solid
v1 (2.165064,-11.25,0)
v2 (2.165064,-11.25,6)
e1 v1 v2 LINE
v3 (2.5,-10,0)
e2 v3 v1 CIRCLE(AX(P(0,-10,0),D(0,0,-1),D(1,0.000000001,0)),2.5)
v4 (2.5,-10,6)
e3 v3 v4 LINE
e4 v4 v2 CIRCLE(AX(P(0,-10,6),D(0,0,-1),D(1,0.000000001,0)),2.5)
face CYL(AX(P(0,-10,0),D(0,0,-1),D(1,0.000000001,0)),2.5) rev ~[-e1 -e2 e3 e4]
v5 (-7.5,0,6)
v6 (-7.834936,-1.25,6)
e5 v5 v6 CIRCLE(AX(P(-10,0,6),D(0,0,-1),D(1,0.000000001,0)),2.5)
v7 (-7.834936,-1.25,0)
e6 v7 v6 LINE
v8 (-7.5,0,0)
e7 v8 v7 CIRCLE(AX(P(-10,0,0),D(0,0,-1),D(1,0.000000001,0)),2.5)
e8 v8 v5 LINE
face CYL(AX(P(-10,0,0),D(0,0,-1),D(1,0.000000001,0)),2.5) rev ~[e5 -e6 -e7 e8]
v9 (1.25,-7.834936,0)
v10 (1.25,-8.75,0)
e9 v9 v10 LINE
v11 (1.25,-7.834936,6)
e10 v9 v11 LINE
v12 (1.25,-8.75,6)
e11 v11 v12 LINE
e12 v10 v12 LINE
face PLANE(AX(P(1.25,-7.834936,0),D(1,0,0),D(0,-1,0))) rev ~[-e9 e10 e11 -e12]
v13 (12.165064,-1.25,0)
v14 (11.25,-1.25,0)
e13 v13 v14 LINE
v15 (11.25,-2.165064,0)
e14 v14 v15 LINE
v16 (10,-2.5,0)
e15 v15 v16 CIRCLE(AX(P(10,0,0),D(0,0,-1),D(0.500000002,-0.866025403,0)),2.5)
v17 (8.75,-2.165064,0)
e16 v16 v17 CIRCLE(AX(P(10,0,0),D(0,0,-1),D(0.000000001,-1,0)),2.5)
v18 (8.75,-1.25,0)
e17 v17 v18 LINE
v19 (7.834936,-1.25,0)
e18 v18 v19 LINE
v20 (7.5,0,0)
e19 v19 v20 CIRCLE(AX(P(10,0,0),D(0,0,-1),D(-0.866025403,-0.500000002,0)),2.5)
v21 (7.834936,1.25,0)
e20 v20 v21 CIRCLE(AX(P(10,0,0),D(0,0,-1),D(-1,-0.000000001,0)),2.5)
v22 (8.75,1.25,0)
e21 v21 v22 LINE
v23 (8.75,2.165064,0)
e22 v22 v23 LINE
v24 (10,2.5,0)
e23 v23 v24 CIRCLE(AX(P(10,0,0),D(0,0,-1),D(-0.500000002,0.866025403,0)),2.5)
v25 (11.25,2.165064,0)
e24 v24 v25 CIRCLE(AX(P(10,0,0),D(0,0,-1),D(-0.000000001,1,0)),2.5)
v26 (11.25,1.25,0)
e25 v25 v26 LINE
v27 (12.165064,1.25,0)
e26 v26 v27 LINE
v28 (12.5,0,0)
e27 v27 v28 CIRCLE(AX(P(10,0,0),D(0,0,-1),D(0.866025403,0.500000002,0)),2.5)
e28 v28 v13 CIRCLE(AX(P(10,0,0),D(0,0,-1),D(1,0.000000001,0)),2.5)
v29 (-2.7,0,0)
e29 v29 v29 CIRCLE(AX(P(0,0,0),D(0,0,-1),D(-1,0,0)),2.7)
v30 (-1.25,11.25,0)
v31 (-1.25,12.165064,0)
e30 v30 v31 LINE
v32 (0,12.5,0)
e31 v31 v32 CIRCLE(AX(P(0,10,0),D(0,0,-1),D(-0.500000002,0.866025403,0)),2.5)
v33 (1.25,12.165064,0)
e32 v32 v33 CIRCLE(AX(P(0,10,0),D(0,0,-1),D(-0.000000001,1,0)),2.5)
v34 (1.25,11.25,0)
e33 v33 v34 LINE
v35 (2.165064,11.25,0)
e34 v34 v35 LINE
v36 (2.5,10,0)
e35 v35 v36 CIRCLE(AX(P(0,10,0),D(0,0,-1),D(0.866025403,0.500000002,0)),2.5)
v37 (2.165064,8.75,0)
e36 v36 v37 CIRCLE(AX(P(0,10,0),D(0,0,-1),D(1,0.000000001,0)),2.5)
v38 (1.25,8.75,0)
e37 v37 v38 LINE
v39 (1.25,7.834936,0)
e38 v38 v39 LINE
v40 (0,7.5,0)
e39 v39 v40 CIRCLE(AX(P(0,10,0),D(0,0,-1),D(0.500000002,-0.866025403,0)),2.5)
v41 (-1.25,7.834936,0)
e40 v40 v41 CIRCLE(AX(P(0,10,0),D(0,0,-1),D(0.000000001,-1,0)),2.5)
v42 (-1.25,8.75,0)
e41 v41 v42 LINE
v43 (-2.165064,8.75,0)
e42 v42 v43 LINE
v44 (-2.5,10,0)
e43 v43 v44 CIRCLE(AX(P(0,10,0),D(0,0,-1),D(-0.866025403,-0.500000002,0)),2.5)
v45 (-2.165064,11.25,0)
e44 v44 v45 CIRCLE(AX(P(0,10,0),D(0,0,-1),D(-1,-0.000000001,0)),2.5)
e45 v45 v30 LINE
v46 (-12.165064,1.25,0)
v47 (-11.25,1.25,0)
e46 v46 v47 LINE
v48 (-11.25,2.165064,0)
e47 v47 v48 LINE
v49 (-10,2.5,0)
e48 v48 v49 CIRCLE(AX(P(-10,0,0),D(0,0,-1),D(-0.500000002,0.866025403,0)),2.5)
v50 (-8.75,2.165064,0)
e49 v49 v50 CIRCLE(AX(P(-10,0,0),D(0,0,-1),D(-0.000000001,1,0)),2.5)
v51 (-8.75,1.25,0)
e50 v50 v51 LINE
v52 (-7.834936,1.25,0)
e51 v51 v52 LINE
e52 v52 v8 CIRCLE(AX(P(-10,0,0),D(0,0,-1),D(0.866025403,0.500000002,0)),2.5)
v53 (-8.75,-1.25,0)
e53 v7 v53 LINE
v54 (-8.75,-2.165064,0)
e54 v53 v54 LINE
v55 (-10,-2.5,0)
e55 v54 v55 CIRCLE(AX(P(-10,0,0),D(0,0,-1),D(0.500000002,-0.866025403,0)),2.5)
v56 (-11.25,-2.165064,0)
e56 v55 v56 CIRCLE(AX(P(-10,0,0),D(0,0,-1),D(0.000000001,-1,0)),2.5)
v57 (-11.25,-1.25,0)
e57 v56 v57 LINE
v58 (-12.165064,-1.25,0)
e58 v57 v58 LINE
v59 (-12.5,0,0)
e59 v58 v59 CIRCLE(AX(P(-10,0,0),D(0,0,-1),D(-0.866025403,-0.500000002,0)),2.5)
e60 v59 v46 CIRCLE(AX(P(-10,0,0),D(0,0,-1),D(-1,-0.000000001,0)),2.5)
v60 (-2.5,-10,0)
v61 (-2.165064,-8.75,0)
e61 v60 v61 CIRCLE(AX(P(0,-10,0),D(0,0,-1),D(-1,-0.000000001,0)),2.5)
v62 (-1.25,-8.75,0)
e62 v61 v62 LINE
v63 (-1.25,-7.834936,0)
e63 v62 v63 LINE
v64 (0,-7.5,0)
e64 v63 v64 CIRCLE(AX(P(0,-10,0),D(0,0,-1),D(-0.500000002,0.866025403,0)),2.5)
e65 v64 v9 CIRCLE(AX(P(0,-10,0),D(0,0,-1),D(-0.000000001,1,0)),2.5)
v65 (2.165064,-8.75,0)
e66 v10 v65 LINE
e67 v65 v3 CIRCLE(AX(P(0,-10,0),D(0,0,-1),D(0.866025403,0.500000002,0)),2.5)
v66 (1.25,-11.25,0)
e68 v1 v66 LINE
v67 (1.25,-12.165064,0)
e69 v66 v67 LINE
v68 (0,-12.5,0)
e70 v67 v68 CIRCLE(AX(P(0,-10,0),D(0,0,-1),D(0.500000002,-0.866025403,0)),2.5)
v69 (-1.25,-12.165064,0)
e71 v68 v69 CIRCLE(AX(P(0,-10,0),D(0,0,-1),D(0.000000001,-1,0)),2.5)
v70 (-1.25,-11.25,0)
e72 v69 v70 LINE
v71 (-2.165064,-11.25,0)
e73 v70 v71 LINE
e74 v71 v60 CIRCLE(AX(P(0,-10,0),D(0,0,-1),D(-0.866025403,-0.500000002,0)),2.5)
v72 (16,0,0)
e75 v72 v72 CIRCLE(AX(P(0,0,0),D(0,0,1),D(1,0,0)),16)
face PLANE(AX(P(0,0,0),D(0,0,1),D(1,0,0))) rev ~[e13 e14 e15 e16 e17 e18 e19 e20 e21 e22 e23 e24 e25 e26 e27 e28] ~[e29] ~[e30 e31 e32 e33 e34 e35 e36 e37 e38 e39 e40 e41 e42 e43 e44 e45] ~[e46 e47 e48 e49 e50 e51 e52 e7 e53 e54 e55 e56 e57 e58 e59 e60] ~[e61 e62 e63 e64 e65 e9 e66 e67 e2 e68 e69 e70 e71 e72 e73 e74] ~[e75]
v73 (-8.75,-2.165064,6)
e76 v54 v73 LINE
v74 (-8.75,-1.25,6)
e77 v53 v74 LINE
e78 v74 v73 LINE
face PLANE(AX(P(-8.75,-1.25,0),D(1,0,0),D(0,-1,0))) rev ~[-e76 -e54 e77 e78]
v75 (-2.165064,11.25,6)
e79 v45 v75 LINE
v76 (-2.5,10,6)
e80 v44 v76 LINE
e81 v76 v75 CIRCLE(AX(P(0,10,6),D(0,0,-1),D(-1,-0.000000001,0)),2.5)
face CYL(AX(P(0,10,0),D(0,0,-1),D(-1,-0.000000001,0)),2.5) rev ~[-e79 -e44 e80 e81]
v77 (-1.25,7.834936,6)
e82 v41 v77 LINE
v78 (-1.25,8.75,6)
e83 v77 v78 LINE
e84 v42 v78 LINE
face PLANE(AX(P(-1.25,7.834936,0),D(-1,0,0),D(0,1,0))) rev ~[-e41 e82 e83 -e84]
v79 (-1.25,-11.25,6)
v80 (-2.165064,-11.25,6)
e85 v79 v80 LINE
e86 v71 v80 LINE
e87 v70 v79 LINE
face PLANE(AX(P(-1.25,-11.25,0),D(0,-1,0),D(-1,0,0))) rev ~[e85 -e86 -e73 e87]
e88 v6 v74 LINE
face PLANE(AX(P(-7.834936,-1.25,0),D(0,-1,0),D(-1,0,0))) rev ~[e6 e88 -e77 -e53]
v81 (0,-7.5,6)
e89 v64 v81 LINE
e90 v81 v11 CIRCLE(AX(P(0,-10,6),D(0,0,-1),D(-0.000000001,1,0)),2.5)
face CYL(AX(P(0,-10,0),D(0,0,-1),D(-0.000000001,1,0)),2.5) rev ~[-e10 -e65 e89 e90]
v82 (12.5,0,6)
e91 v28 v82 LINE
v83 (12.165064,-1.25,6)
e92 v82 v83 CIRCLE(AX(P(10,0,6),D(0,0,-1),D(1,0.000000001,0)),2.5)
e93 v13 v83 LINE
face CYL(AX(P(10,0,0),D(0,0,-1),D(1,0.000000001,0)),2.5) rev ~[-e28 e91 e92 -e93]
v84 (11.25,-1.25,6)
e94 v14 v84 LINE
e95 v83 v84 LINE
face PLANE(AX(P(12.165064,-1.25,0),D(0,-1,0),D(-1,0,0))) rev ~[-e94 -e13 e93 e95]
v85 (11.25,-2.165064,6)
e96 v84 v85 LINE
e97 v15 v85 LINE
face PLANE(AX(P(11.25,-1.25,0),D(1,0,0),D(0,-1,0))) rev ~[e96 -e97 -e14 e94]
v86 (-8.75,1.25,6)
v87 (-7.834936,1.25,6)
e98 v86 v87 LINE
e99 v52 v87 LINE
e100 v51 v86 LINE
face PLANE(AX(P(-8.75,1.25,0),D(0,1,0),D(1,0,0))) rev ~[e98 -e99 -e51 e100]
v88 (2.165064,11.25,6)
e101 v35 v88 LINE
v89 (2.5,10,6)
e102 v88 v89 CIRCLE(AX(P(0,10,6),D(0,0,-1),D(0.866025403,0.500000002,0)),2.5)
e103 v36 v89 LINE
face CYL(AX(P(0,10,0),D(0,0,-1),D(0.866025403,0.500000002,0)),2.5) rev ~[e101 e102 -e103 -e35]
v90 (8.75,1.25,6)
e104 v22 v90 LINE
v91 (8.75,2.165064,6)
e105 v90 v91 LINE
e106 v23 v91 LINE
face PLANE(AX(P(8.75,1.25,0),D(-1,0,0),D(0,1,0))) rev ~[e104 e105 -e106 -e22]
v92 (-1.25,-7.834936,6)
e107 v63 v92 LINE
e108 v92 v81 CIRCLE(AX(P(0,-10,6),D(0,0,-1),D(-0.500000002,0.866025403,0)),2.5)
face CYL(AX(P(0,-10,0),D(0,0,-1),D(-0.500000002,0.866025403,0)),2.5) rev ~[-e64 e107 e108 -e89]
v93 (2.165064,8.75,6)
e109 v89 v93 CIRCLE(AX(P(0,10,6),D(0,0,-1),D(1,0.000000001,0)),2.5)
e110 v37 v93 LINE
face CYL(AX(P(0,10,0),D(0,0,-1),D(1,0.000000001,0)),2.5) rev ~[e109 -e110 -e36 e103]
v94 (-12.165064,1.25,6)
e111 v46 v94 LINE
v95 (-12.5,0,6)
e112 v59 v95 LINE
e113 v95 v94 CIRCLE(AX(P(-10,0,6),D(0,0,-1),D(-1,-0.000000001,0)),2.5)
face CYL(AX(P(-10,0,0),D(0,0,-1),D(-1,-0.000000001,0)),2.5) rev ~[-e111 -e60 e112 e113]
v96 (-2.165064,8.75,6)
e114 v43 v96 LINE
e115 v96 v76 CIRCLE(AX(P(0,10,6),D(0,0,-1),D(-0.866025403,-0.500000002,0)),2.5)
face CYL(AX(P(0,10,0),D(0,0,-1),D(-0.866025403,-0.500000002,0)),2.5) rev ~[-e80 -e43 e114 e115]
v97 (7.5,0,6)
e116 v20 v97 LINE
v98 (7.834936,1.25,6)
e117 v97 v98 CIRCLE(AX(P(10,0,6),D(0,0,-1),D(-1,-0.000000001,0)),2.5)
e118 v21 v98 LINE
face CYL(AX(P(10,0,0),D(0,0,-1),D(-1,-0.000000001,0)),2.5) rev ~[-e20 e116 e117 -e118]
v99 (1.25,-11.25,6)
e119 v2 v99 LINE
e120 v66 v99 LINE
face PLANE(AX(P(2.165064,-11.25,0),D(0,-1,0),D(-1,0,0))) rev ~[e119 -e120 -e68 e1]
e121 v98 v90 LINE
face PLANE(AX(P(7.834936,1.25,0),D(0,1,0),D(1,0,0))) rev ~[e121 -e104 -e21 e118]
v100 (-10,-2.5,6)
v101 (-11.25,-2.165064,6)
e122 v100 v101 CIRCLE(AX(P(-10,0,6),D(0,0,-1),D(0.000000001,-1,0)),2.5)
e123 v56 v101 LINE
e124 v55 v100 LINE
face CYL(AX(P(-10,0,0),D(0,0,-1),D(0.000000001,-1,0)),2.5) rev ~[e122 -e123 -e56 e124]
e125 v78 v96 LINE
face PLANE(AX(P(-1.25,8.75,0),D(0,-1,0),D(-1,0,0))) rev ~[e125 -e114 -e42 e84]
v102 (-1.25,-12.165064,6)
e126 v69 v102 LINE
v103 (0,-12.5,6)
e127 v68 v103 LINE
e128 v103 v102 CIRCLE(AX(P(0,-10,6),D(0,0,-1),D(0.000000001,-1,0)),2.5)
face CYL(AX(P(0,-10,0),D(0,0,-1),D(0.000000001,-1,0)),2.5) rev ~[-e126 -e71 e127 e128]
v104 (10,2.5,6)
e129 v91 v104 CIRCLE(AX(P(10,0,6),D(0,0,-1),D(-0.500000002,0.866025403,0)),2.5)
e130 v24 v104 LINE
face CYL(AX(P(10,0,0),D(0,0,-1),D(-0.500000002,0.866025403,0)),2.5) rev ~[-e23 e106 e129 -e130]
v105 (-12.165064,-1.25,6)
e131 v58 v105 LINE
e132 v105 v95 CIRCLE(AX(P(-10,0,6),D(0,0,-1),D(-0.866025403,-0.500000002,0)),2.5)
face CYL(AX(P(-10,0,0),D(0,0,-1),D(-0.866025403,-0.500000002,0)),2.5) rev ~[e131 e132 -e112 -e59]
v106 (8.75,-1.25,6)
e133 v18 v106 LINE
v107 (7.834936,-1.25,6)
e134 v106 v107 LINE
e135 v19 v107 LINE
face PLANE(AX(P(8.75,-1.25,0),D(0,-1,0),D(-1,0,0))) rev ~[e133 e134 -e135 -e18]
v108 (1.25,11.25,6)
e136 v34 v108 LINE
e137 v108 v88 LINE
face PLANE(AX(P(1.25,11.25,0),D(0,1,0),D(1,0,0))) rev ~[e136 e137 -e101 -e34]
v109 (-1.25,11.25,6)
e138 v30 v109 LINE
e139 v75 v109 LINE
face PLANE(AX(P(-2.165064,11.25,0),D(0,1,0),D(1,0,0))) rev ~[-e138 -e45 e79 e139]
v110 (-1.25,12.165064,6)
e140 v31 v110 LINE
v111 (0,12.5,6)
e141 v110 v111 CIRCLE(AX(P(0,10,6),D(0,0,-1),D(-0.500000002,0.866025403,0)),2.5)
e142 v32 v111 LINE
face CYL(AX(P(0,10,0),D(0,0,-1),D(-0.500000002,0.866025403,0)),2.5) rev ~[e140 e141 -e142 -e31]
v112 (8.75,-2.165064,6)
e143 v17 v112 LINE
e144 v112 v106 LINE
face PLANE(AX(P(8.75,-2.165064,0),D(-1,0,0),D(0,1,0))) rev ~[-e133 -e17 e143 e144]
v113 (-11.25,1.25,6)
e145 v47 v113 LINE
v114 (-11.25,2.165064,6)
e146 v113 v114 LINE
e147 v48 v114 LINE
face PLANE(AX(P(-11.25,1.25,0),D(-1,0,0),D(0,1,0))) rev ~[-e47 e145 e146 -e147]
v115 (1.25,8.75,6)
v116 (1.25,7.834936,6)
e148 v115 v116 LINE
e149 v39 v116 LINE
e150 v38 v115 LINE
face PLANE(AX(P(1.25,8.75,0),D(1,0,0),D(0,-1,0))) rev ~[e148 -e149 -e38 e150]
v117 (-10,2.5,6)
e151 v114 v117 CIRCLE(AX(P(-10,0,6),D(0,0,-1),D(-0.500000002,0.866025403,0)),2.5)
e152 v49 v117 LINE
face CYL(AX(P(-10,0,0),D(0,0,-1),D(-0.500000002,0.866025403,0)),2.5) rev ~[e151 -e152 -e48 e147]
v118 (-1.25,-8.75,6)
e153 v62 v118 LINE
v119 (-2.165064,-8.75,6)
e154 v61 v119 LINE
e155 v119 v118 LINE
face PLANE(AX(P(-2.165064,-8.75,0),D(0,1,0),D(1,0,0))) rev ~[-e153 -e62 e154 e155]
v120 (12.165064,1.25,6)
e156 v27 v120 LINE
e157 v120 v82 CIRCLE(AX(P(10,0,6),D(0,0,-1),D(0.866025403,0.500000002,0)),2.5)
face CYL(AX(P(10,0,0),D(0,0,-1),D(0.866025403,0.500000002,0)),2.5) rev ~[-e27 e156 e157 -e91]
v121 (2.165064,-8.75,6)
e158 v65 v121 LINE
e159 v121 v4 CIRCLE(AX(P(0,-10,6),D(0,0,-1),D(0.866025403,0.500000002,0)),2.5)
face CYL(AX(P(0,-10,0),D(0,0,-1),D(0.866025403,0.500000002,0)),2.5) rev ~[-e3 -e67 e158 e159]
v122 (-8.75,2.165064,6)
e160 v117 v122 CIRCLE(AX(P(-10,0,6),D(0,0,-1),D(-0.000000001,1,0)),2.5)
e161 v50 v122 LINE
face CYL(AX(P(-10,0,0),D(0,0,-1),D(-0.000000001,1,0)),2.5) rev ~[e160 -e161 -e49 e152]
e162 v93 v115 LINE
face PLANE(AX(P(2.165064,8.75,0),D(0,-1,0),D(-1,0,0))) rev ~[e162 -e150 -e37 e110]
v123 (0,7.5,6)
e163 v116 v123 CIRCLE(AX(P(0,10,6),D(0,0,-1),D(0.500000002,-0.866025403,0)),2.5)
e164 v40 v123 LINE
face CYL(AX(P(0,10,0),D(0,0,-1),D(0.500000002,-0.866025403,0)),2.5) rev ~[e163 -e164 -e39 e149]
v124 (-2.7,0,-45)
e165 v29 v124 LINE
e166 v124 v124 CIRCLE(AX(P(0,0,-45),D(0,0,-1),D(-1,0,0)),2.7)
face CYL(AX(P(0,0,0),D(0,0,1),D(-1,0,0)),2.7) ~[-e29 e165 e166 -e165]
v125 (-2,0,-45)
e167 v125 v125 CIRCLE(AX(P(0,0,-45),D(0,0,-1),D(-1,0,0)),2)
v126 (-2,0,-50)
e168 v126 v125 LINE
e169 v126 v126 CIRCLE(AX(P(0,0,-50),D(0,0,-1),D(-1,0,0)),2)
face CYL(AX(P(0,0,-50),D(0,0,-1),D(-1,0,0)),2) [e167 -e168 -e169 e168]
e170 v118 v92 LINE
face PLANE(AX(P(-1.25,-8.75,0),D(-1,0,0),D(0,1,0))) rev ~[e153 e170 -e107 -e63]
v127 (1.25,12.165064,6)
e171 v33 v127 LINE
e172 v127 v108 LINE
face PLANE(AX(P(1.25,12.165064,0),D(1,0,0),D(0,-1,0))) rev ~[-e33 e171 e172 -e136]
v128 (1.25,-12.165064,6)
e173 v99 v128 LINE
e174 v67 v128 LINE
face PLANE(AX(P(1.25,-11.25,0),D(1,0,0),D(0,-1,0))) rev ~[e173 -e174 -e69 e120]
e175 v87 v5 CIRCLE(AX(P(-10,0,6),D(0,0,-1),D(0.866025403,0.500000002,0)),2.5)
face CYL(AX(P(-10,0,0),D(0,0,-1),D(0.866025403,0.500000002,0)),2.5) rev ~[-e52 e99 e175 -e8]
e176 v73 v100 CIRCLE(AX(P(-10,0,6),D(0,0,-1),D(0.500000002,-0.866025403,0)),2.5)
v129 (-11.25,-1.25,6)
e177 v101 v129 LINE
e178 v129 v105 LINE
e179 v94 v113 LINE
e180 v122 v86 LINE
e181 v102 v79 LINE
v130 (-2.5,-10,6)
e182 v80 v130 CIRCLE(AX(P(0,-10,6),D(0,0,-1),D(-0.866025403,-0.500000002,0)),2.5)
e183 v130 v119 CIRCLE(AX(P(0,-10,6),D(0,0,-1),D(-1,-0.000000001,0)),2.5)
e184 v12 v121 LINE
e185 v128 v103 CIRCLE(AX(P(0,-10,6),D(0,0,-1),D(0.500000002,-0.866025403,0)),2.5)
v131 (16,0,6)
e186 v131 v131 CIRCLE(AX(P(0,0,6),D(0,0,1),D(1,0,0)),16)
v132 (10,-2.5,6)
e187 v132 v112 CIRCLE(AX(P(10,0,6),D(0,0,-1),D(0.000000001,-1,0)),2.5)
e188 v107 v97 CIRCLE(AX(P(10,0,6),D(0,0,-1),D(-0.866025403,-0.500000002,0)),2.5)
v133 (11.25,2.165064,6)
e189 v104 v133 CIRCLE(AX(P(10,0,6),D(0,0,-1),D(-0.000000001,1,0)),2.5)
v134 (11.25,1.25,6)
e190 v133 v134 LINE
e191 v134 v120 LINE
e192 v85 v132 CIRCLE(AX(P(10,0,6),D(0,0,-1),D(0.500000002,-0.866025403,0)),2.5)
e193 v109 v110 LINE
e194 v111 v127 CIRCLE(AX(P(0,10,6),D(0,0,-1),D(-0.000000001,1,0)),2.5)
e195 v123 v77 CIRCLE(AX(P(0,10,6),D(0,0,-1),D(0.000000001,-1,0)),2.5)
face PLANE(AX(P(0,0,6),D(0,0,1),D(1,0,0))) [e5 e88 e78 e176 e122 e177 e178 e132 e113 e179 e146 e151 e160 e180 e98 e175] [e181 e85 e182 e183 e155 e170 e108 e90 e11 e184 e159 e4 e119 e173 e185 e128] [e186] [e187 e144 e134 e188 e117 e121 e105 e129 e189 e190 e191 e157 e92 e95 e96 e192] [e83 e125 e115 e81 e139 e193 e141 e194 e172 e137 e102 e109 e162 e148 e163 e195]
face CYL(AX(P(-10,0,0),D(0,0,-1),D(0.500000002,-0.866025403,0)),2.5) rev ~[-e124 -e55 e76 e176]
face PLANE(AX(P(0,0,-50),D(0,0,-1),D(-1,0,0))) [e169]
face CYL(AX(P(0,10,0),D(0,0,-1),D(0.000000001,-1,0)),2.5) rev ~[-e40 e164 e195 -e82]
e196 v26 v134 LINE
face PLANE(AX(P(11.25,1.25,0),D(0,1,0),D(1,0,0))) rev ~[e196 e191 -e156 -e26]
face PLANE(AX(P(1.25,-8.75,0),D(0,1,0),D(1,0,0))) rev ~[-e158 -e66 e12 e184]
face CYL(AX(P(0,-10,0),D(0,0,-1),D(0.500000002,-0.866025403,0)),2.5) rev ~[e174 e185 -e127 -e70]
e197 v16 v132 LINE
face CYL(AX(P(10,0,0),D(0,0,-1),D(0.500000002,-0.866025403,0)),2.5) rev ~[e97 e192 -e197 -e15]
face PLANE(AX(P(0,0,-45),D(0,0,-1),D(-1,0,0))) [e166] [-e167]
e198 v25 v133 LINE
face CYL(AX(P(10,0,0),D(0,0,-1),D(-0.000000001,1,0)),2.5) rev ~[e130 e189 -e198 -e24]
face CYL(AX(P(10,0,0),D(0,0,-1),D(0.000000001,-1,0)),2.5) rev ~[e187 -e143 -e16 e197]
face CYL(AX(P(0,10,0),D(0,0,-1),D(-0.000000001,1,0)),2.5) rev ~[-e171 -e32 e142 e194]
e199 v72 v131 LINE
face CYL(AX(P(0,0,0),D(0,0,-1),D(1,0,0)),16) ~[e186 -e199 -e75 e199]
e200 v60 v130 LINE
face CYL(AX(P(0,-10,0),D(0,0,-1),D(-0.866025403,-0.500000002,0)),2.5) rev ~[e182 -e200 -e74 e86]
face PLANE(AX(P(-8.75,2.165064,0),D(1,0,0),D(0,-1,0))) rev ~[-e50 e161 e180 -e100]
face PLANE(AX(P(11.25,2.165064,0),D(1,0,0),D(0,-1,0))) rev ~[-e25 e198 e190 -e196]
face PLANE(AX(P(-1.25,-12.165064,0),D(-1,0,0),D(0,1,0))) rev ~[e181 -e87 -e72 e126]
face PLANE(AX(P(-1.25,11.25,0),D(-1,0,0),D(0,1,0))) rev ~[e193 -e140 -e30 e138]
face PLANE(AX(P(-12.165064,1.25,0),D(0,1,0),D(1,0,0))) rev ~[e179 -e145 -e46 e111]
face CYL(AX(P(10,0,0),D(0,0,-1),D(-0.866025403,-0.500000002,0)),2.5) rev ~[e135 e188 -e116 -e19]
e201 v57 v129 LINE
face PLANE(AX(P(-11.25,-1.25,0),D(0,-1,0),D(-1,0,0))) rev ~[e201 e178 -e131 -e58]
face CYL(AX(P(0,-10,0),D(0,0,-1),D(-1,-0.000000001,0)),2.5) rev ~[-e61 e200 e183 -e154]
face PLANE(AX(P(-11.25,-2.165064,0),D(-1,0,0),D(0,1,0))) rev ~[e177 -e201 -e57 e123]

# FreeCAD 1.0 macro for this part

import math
import FreeCAD as App
import Part
import Sketcher

doc = App.newDocument("Part")
params = doc.addObject("Spreadsheet::Sheet", "Params")
for row, (alias, value) in enumerate([
    ("sketch1_diameter", "32 mm"),
    ("sketch1_radius", "2.5 mm"),
    ("pad1_length", "6 mm"),
    ("sketch2_diameter", "5.4 mm"),
    ("pad2_length", "50 mm"),
    ("sketch3_diameter", "4 mm"),
    ("sketch3_diameter2", "5.4 mm"),
    ("pocket1_length", "5 mm"),
], start=1):
    params.set(f"A{row}", alias)
    params.set(f"B{row}", "=" + value)
    params.setAlias(f"B{row}", alias)

body = doc.addObject("PartDesign::Body", "Body")

sketch1 = body.newObject("Sketcher::SketchObject", "Sketch")
sketch1.AttachmentSupport = (doc.getObject("XY_Plane"), [""])
sketch1.MapMode = "FlatFace"
sketch1.addGeometry(Part.Circle(App.Vector(0, 0, 0), App.Vector(0, 0, 1), 16), False)
sketch1.addGeometry(Part.ArcOfCircle(Part.Circle(App.Vector(0, -10, 0), App.Vector(0, 0, 1), 2.5), math.radians(-120), math.radians(-90)), False)
sketch1.addGeometry(Part.LineSegment(App.Vector(-1.25, -12.165064, 0), App.Vector(-1.25, -11.25, 0)), False)
sketch1.addGeometry(Part.LineSegment(App.Vector(-1.25, -11.25, 0), App.Vector(-2.165064, -11.25, 0)), False)
sketch1.addGeometry(Part.ArcOfCircle(Part.Circle(App.Vector(0, -10, 0), App.Vector(0, 0, 1), 2.5), math.radians(180), math.radians(210)), False)
sketch1.addGeometry(Part.ArcOfCircle(Part.Circle(App.Vector(0, -10, 0), App.Vector(0, 0, 1), 2.5), math.radians(150), math.radians(180)), False)
sketch1.addGeometry(Part.LineSegment(App.Vector(-2.165064, -8.75, 0), App.Vector(-1.25, -8.75, 0)), False)
sketch1.addGeometry(Part.LineSegment(App.Vector(-1.25, -8.75, 0), App.Vector(-1.25, -7.834936, 0)), False)
sketch1.addGeometry(Part.ArcOfCircle(Part.Circle(App.Vector(0, -10, 0), App.Vector(0, 0, 1), 2.5), math.radians(90), math.radians(120)), False)
sketch1.addGeometry(Part.ArcOfCircle(Part.Circle(App.Vector(0, -10, 0), App.Vector(0, 0, 1), 2.5), math.radians(60), math.radians(90)), False)
sketch1.addGeometry(Part.LineSegment(App.Vector(1.25, -7.834936, 0), App.Vector(1.25, -8.75, 0)), False)
sketch1.addGeometry(Part.LineSegment(App.Vector(1.25, -8.75, 0), App.Vector(2.165064, -8.75, 0)), False)
sketch1.addGeometry(Part.ArcOfCircle(Part.Circle(App.Vector(0, -10, 0), App.Vector(0, 0, 1), 2.5), math.radians(0), math.radians(30)), False)
sketch1.addGeometry(Part.ArcOfCircle(Part.Circle(App.Vector(0, -10, 0), App.Vector(0, 0, 1), 2.5), math.radians(-30), math.radians(0)), False)
sketch1.addGeometry(Part.LineSegment(App.Vector(2.165064, -11.25, 0), App.Vector(1.25, -11.25, 0)), False)
sketch1.addGeometry(Part.LineSegment(App.Vector(1.25, -11.25, 0), App.Vector(1.25, -12.165064, 0)), False)
sketch1.addGeometry(Part.ArcOfCircle(Part.Circle(App.Vector(0, -10, 0), App.Vector(0, 0, 1), 2.5), math.radians(-90), math.radians(-60)), False)
sketch1.addGeometry(Part.ArcOfCircle(Part.Circle(App.Vector(-10, 0, 0), App.Vector(0, 0, 1), 2.5), math.radians(150), math.radians(180)), False)
sketch1.addGeometry(Part.LineSegment(App.Vector(-12.165064, 1.25, 0), App.Vector(-11.25, 1.25, 0)), False)
sketch1.addGeometry(Part.LineSegment(App.Vector(-11.25, 1.25, 0), App.Vector(-11.25, 2.165064, 0)), False)
sketch1.addGeometry(Part.ArcOfCircle(Part.Circle(App.Vector(-10, 0, 0), App.Vector(0, 0, 1), 2.5), math.radians(90), math.radians(120)), False)
sketch1.addGeometry(Part.ArcOfCircle(Part.Circle(App.Vector(-10, 0, 0), App.Vector(0, 0, 1), 2.5), math.radians(60), math.radians(90)), False)
sketch1.addGeometry(Part.LineSegment(App.Vector(-8.75, 2.165064, 0), App.Vector(-8.75, 1.25, 0)), False)
sketch1.addGeometry(Part.LineSegment(App.Vector(-8.75, 1.25, 0), App.Vector(-7.834936, 1.25, 0)), False)
sketch1.addGeometry(Part.ArcOfCircle(Part.Circle(App.Vector(-10, 0, 0), App.Vector(0, 0, 1), 2.5), math.radians(0), math.radians(30)), False)
sketch1.addGeometry(Part.ArcOfCircle(Part.Circle(App.Vector(-10, 0, 0), App.Vector(0, 0, 1), 2.5), math.radians(-30), math.radians(0)), False)
sketch1.addGeometry(Part.LineSegment(App.Vector(-7.834936, -1.25, 0), App.Vector(-8.75, -1.25, 0)), False)
sketch1.addGeometry(Part.LineSegment(App.Vector(-8.75, -1.25, 0), App.Vector(-8.75, -2.165064, 0)), False)
sketch1.addGeometry(Part.ArcOfCircle(Part.Circle(App.Vector(-10, 0, 0), App.Vector(0, 0, 1), 2.5), math.radians(-90), math.radians(-60)), False)
sketch1.addGeometry(Part.ArcOfCircle(Part.Circle(App.Vector(-10, 0, 0), App.Vector(0, 0, 1), 2.5), math.radians(-120), math.radians(-90)), False)
sketch1.addGeometry(Part.LineSegment(App.Vector(-11.25, -2.165064, 0), App.Vector(-11.25, -1.25, 0)), False)
sketch1.addGeometry(Part.LineSegment(App.Vector(-11.25, -1.25, 0), App.Vector(-12.165064, -1.25, 0)), False)
sketch1.addGeometry(Part.ArcOfCircle(Part.Circle(App.Vector(-10, 0, 0), App.Vector(0, 0, 1), 2.5), math.radians(180), math.radians(210)), False)
sketch1.addGeometry(Part.ArcOfCircle(Part.Circle(App.Vector(10, 0, 0), App.Vector(0, 0, 1), 2.5), math.radians(-30), math.radians(0)), False)
sketch1.addGeometry(Part.LineSegment(App.Vector(12.165064, -1.25, 0), App.Vector(11.25, -1.25, 0)), False)
sketch1.addGeometry(Part.LineSegment(App.Vector(11.25, -1.25, 0), App.Vector(11.25, -2.165064, 0)), False)
sketch1.addGeometry(Part.ArcOfCircle(Part.Circle(App.Vector(10, 0, 0), App.Vector(0, 0, 1), 2.5), math.radians(-90), math.radians(-60)), False)
sketch1.addGeometry(Part.ArcOfCircle(Part.Circle(App.Vector(10, 0, 0), App.Vector(0, 0, 1), 2.5), math.radians(-120), math.radians(-90)), False)
sketch1.addGeometry(Part.LineSegment(App.Vector(8.75, -2.165064, 0), App.Vector(8.75, -1.25, 0)), False)
sketch1.addGeometry(Part.LineSegment(App.Vector(8.75, -1.25, 0), App.Vector(7.834936, -1.25, 0)), False)
sketch1.addGeometry(Part.ArcOfCircle(Part.Circle(App.Vector(10, 0, 0), App.Vector(0, 0, 1), 2.5), math.radians(180), math.radians(210)), False)
sketch1.addGeometry(Part.ArcOfCircle(Part.Circle(App.Vector(10, 0, 0), App.Vector(0, 0, 1), 2.5), math.radians(150), math.radians(180)), False)
sketch1.addGeometry(Part.LineSegment(App.Vector(7.834936, 1.25, 0), App.Vector(8.75, 1.25, 0)), False)
sketch1.addGeometry(Part.LineSegment(App.Vector(8.75, 1.25, 0), App.Vector(8.75, 2.165064, 0)), False)
sketch1.addGeometry(Part.ArcOfCircle(Part.Circle(App.Vector(10, 0, 0), App.Vector(0, 0, 1), 2.5), math.radians(90), math.radians(120)), False)
sketch1.addGeometry(Part.ArcOfCircle(Part.Circle(App.Vector(10, 0, 0), App.Vector(0, 0, 1), 2.5), math.radians(60), math.radians(90)), False)
sketch1.addGeometry(Part.LineSegment(App.Vector(11.25, 2.165064, 0), App.Vector(11.25, 1.25, 0)), False)
sketch1.addGeometry(Part.LineSegment(App.Vector(11.25, 1.25, 0), App.Vector(12.165064, 1.25, 0)), False)
sketch1.addGeometry(Part.ArcOfCircle(Part.Circle(App.Vector(10, 0, 0), App.Vector(0, 0, 1), 2.5), math.radians(0), math.radians(30)), False)
sketch1.addGeometry(Part.ArcOfCircle(Part.Circle(App.Vector(0, 10, 0), App.Vector(0, 0, 1), 2.5), math.radians(60), math.radians(90)), False)
sketch1.addGeometry(Part.LineSegment(App.Vector(1.25, 12.165064, 0), App.Vector(1.25, 11.25, 0)), False)
sketch1.addGeometry(Part.LineSegment(App.Vector(1.25, 11.25, 0), App.Vector(2.165064, 11.25, 0)), False)
sketch1.addGeometry(Part.ArcOfCircle(Part.Circle(App.Vector(0, 10, 0), App.Vector(0, 0, 1), 2.5), math.radians(0), math.radians(30)), False)
sketch1.addGeometry(Part.ArcOfCircle(Part.Circle(App.Vector(0, 10, 0), App.Vector(0, 0, 1), 2.5), math.radians(-30), math.radians(0)), False)
sketch1.addGeometry(Part.LineSegment(App.Vector(2.165064, 8.75, 0), App.Vector(1.25, 8.75, 0)), False)
sketch1.addGeometry(Part.LineSegment(App.Vector(1.25, 8.75, 0), App.Vector(1.25, 7.834936, 0)), False)
sketch1.addGeometry(Part.ArcOfCircle(Part.Circle(App.Vector(0, 10, 0), App.Vector(0, 0, 1), 2.5), math.radians(-90), math.radians(-60)), False)
sketch1.addGeometry(Part.ArcOfCircle(Part.Circle(App.Vector(0, 10, 0), App.Vector(0, 0, 1), 2.5), math.radians(-120), math.radians(-90)), False)
sketch1.addGeometry(Part.LineSegment(App.Vector(-1.25, 7.834936, 0), App.Vector(-1.25, 8.75, 0)), False)
sketch1.addGeometry(Part.LineSegment(App.Vector(-1.25, 8.75, 0), App.Vector(-2.165064, 8.75, 0)), False)
sketch1.addGeometry(Part.ArcOfCircle(Part.Circle(App.Vector(0, 10, 0), App.Vector(0, 0, 1), 2.5), math.radians(180), math.radians(210)), False)
sketch1.addGeometry(Part.ArcOfCircle(Part.Circle(App.Vector(0, 10, 0), App.Vector(0, 0, 1), 2.5), math.radians(150), math.radians(180)), False)
sketch1.addGeometry(Part.LineSegment(App.Vector(-2.165064, 11.25, 0), App.Vector(-1.25, 11.25, 0)), False)
sketch1.addGeometry(Part.LineSegment(App.Vector(-1.25, 11.25, 0), App.Vector(-1.25, 12.165064, 0)), False)
sketch1.addGeometry(Part.ArcOfCircle(Part.Circle(App.Vector(0, 10, 0), App.Vector(0, 0, 1), 2.5), math.radians(90), math.radians(120)), False)
sketch1.addConstraint(Sketcher.Constraint("Coincident", 1, 1, 2, 1))
sketch1.addConstraint(Sketcher.Constraint("Coincident", 2, 2, 3, 1))
sketch1.addConstraint(Sketcher.Constraint("Coincident", 3, 2, 4, 2))
sketch1.addConstraint(Sketcher.Constraint("Tangent", 4, 1, 5, 2))
sketch1.addConstraint(Sketcher.Constraint("Coincident", 5, 1, 6, 1))
sketch1.addConstraint(Sketcher.Constraint("Coincident", 6, 2, 7, 1))
sketch1.addConstraint(Sketcher.Constraint("Coincident", 7, 2, 8, 2))
sketch1.addConstraint(Sketcher.Constraint("Tangent", 8, 1, 9, 2))
sketch1.addConstraint(Sketcher.Constraint("Coincident", 9, 1, 10, 1))
sketch1.addConstraint(Sketcher.Constraint("Coincident", 10, 2, 11, 1))
sketch1.addConstraint(Sketcher.Constraint("Coincident", 11, 2, 12, 2))
sketch1.addConstraint(Sketcher.Constraint("Tangent", 12, 1, 13, 2))
sketch1.addConstraint(Sketcher.Constraint("Coincident", 13, 1, 14, 1))
sketch1.addConstraint(Sketcher.Constraint("Coincident", 14, 2, 15, 1))
sketch1.addConstraint(Sketcher.Constraint("Coincident", 15, 2, 16, 2))
sketch1.addConstraint(Sketcher.Constraint("Tangent", 16, 1, 1, 2))
sketch1.addConstraint(Sketcher.Constraint("Coincident", 17, 1, 18, 1))
sketch1.addConstraint(Sketcher.Constraint("Coincident", 18, 2, 19, 1))
sketch1.addConstraint(Sketcher.Constraint("Coincident", 19, 2, 20, 2))
sketch1.addConstraint(Sketcher.Constraint("Tangent", 20, 1, 21, 2))
sketch1.addConstraint(Sketcher.Constraint("Coincident", 21, 1, 22, 1))
sketch1.addConstraint(Sketcher.Constraint("Coincident", 22, 2, 23, 1))
sketch1.addConstraint(Sketcher.Constraint("Coincident", 23, 2, 24, 2))
sketch1.addConstraint(Sketcher.Constraint("Tangent", 24, 1, 25, 2))
sketch1.addConstraint(Sketcher.Constraint("Coincident", 25, 1, 26, 1))
sketch1.addConstraint(Sketcher.Constraint("Coincident", 26, 2, 27, 1))
sketch1.addConstraint(Sketcher.Constraint("Coincident", 27, 2, 28, 2))
sketch1.addConstraint(Sketcher.Constraint("Tangent", 28, 1, 29, 2))
sketch1.addConstraint(Sketcher.Constraint("Coincident", 29, 1, 30, 1))
sketch1.addConstraint(Sketcher.Constraint("Coincident", 30, 2, 31, 1))
sketch1.addConstraint(Sketcher.Constraint("Coincident", 31, 2, 32, 2))
sketch1.addConstraint(Sketcher.Constraint("Tangent", 32, 1, 17, 2))
sketch1.addConstraint(Sketcher.Constraint("Coincident", 33, 1, 34, 1))
sketch1.addConstraint(Sketcher.Constraint("Coincident", 34, 2, 35, 1))
sketch1.addConstraint(Sketcher.Constraint("Coincident", 35, 2, 36, 2))
sketch1.addConstraint(Sketcher.Constraint("Tangent", 36, 1, 37, 2))
sketch1.addConstraint(Sketcher.Constraint("Coincident", 37, 1, 38, 1))
sketch1.addConstraint(Sketcher.Constraint("Coincident", 38, 2, 39, 1))
sketch1.addConstraint(Sketcher.Constraint("Coincident", 39, 2, 40, 2))
sketch1.addConstraint(Sketcher.Constraint("Tangent", 40, 1, 41, 2))
sketch1.addConstraint(Sketcher.Constraint("Coincident", 41, 1, 42, 1))
sketch1.addConstraint(Sketcher.Constraint("Coincident", 42, 2, 43, 1))
sketch1.addConstraint(Sketcher.Constraint("Coincident", 43, 2, 44, 2))
sketch1.addConstraint(Sketcher.Constraint("Tangent", 44, 1, 45, 2))
sketch1.addConstraint(Sketcher.Constraint("Coincident", 45, 1, 46, 1))
sketch1.addConstraint(Sketcher.Constraint("Coincident", 46, 2, 47, 1))
sketch1.addConstraint(Sketcher.Constraint("Coincident", 47, 2, 48, 2))
sketch1.addConstraint(Sketcher.Constraint("Tangent", 48, 1, 33, 2))
sketch1.addConstraint(Sketcher.Constraint("Coincident", 49, 1, 50, 1))
sketch1.addConstraint(Sketcher.Constraint("Coincident", 50, 2, 51, 1))
sketch1.addConstraint(Sketcher.Constraint("Coincident", 51, 2, 52, 2))
sketch1.addConstraint(Sketcher.Constraint("Tangent", 52, 1, 53, 2))
sketch1.addConstraint(Sketcher.Constraint("Coincident", 53, 1, 54, 1))
sketch1.addConstraint(Sketcher.Constraint("Coincident", 54, 2, 55, 1))
sketch1.addConstraint(Sketcher.Constraint("Coincident", 55, 2, 56, 2))
sketch1.addConstraint(Sketcher.Constraint("Tangent", 56, 1, 57, 2))
sketch1.addConstraint(Sketcher.Constraint("Coincident", 57, 1, 58, 1))
sketch1.addConstraint(Sketcher.Constraint("Coincident", 58, 2, 59, 1))
sketch1.addConstraint(Sketcher.Constraint("Coincident", 59, 2, 60, 2))
sketch1.addConstraint(Sketcher.Constraint("Tangent", 60, 1, 61, 2))
sketch1.addConstraint(Sketcher.Constraint("Coincident", 61, 1, 62, 1))
sketch1.addConstraint(Sketcher.Constraint("Coincident", 62, 2, 63, 1))
sketch1.addConstraint(Sketcher.Constraint("Coincident", 63, 2, 64, 2))
sketch1.addConstraint(Sketcher.Constraint("Tangent", 64, 1, 49, 2))
sketch1.addConstraint(Sketcher.Constraint("Vertical", 2))
sketch1.addConstraint(Sketcher.Constraint("Horizontal", 3))
sketch1.addConstraint(Sketcher.Constraint("Horizontal", 6))
sketch1.addConstraint(Sketcher.Constraint("Vertical", 7))
sketch1.addConstraint(Sketcher.Constraint("Vertical", 10))
sketch1.addConstraint(Sketcher.Constraint("Horizontal", 11))
sketch1.addConstraint(Sketcher.Constraint("Horizontal", 14))
sketch1.addConstraint(Sketcher.Constraint("Vertical", 15))
sketch1.addConstraint(Sketcher.Constraint("Horizontal", 18))
sketch1.addConstraint(Sketcher.Constraint("Vertical", 19))
sketch1.addConstraint(Sketcher.Constraint("Vertical", 22))
sketch1.addConstraint(Sketcher.Constraint("Horizontal", 23))
sketch1.addConstraint(Sketcher.Constraint("Horizontal", 26))
sketch1.addConstraint(Sketcher.Constraint("Vertical", 27))
sketch1.addConstraint(Sketcher.Constraint("Vertical", 30))
sketch1.addConstraint(Sketcher.Constraint("Horizontal", 31))
sketch1.addConstraint(Sketcher.Constraint("Horizontal", 34))
sketch1.addConstraint(Sketcher.Constraint("Vertical", 35))
sketch1.addConstraint(Sketcher.Constraint("Vertical", 38))
sketch1.addConstraint(Sketcher.Constraint("Horizontal", 39))
sketch1.addConstraint(Sketcher.Constraint("Horizontal", 42))
sketch1.addConstraint(Sketcher.Constraint("Vertical", 43))
sketch1.addConstraint(Sketcher.Constraint("Vertical", 46))
sketch1.addConstraint(Sketcher.Constraint("Horizontal", 47))
sketch1.addConstraint(Sketcher.Constraint("Vertical", 50))
sketch1.addConstraint(Sketcher.Constraint("Horizontal", 51))
sketch1.addConstraint(Sketcher.Constraint("Horizontal", 54))
sketch1.addConstraint(Sketcher.Constraint("Vertical", 55))
sketch1.addConstraint(Sketcher.Constraint("Vertical", 58))
sketch1.addConstraint(Sketcher.Constraint("Horizontal", 59))
sketch1.addConstraint(Sketcher.Constraint("Horizontal", 62))
sketch1.addConstraint(Sketcher.Constraint("Vertical", 63))
sketch1.addConstraint(Sketcher.Constraint("Coincident", 0, 3, -1, 1))
sketch1.addConstraint(Sketcher.Constraint("Coincident", 4, 3, 1, 3))
sketch1.addConstraint(Sketcher.Constraint("Coincident", 8, 3, 1, 3))
sketch1.addConstraint(Sketcher.Constraint("Coincident", 12, 3, 1, 3))
sketch1.addConstraint(Sketcher.Constraint("Coincident", 20, 3, 17, 3))
sketch1.addConstraint(Sketcher.Constraint("Coincident", 24, 3, 17, 3))
sketch1.addConstraint(Sketcher.Constraint("Coincident", 28, 3, 17, 3))
sketch1.addConstraint(Sketcher.Constraint("Coincident", 36, 3, 33, 3))
sketch1.addConstraint(Sketcher.Constraint("Coincident", 40, 3, 33, 3))
sketch1.addConstraint(Sketcher.Constraint("Coincident", 44, 3, 33, 3))
sketch1.addConstraint(Sketcher.Constraint("Coincident", 52, 3, 49, 3))
sketch1.addConstraint(Sketcher.Constraint("Coincident", 56, 3, 49, 3))
sketch1.addConstraint(Sketcher.Constraint("Coincident", 60, 3, 49, 3))
sketch1.addConstraint(Sketcher.Constraint("Equal", 1, 4))
sketch1.addConstraint(Sketcher.Constraint("Equal", 4, 5))
sketch1.addConstraint(Sketcher.Constraint("Equal", 5, 8))
sketch1.addConstraint(Sketcher.Constraint("Equal", 8, 9))
sketch1.addConstraint(Sketcher.Constraint("Equal", 9, 12))
sketch1.addConstraint(Sketcher.Constraint("Equal", 12, 13))
sketch1.addConstraint(Sketcher.Constraint("Equal", 13, 16))
sketch1.addConstraint(Sketcher.Constraint("Equal", 16, 17))
sketch1.addConstraint(Sketcher.Constraint("Equal", 17, 20))
sketch1.addConstraint(Sketcher.Constraint("Equal", 20, 21))
sketch1.addConstraint(Sketcher.Constraint("Equal", 21, 24))
sketch1.addConstraint(Sketcher.Constraint("Equal", 24, 25))
sketch1.addConstraint(Sketcher.Constraint("Equal", 25, 28))
sketch1.addConstraint(Sketcher.Constraint("Equal", 28, 29))
sketch1.addConstraint(Sketcher.Constraint("Equal", 29, 32))
sketch1.addConstraint(Sketcher.Constraint("Equal", 32, 33))
sketch1.addConstraint(Sketcher.Constraint("Equal", 33, 36))
sketch1.addConstraint(Sketcher.Constraint("Equal", 36, 37))
sketch1.addConstraint(Sketcher.Constraint("Equal", 37, 40))
sketch1.addConstraint(Sketcher.Constraint("Equal", 40, 41))
sketch1.addConstraint(Sketcher.Constraint("Equal", 41, 44))
sketch1.addConstraint(Sketcher.Constraint("Equal", 44, 45))
sketch1.addConstraint(Sketcher.Constraint("Equal", 45, 48))
sketch1.addConstraint(Sketcher.Constraint("Equal", 48, 49))
sketch1.addConstraint(Sketcher.Constraint("Equal", 49, 52))
sketch1.addConstraint(Sketcher.Constraint("Equal", 52, 53))
sketch1.addConstraint(Sketcher.Constraint("Equal", 53, 56))
sketch1.addConstraint(Sketcher.Constraint("Equal", 56, 57))
sketch1.addConstraint(Sketcher.Constraint("Equal", 57, 60))
sketch1.addConstraint(Sketcher.Constraint("Equal", 60, 61))
sketch1.addConstraint(Sketcher.Constraint("Equal", 61, 64))
sketch1.addConstraint(Sketcher.Constraint("Symmetric", 17, 3, 33, 3, -1, 1))
sketch1.addConstraint(Sketcher.Constraint("Symmetric", 1, 3, 49, 3, -1, 1))
sketch1.addConstraint(Sketcher.Constraint("Symmetric", 18, 2, 34, 2, -1, 1))
sketch1.addConstraint(Sketcher.Constraint("Symmetric", 22, 2, 38, 2, -1, 1))
sketch1.addConstraint(Sketcher.Constraint("Symmetric", 26, 2, 42, 2, -1, 1))
sketch1.addConstraint(Sketcher.Constraint("Symmetric", 30, 2, 46, 2, -1, 1))
sketch1.addConstraint(Sketcher.Constraint("Symmetric", 2, 2, 50, 2, -1, 1))
sketch1.addConstraint(Sketcher.Constraint("Symmetric", 6, 2, 54, 2, -1, 1))
sketch1.addConstraint(Sketcher.Constraint("Symmetric", 10, 2, 58, 2, -1, 1))
sketch1.addConstraint(Sketcher.Constraint("Symmetric", 14, 2, 62, 2, -1, 1))
sketch1.addConstraint(Sketcher.Constraint("Symmetric", 7, 2, 9, 1, -2))
sketch1.addConstraint(Sketcher.Constraint("Symmetric", 2, 2, 14, 2, -2))
sketch1.addConstraint(Sketcher.Constraint("Symmetric", 31, 2, 33, 1, -2))
sketch1.addConstraint(Sketcher.Constraint("Symmetric", 26, 2, 38, 2, -2))
sketch1.addConstraint(Sketcher.Constraint("PointOnObject", 8, 1, -2))
sketch1.addConstraint(Sketcher.Constraint("PointOnObject", 16, 1, -2))
sketch1.addConstraint(Sketcher.Constraint("PointOnObject", 24, 1, -1))
sketch1.addConstraint(Sketcher.Constraint("PointOnObject", 32, 1, -1))
sketch1.addConstraint(Sketcher.Constraint("PointOnObject", 40, 1, -1))
sketch1.addConstraint(Sketcher.Constraint("PointOnObject", 48, 1, -1))
sketch1.addConstraint(Sketcher.Constraint("PointOnObject", 56, 1, -2))
sketch1.addConstraint(Sketcher.Constraint("PointOnObject", 64, 1, -2))
sketch1.addConstraint(Sketcher.Constraint("Horizontal", 16, 3, 4, 1))
sketch1.addConstraint(Sketcher.Constraint("Horizontal", 6, 2, 10, 2))
sketch1.addConstraint(Sketcher.Constraint("Horizontal", 4, 1, 12, 1))
sketch1.addConstraint(Sketcher.Constraint("Horizontal", 19, 2, 21, 1))
sketch1.addConstraint(Sketcher.Constraint("Horizontal", 18, 2, 22, 2))
sketch1.addConstraint(Sketcher.Constraint("Horizontal", 27, 2, 29, 1))
sketch1.addConstraint(Sketcher.Constraint("Horizontal", 64, 3, 52, 1))
sketch1.addConstraint(Sketcher.Constraint("Horizontal", 52, 1, 60, 1))
sketch1.addConstraint(Sketcher.Constraint("Vertical", 3, 2, 5, 1))
sketch1.addConstraint(Sketcher.Constraint("Vertical", 2, 2, 6, 2))
sketch1.addConstraint(Sketcher.Constraint("Vertical", 32, 3, 20, 1))
sketch1.addConstraint(Sketcher.Constraint("Vertical", 20, 1, 28, 1))
sketch1.addConstraint(Sketcher.Constraint("Vertical", 48, 3, 36, 1))
sketch1.addConstraint(Sketcher.Constraint("Vertical", 36, 1, 44, 1))
sketch1.addConstraint(Sketcher.Constraint("Equal", 14, 18))
sketch1.addConstraint(Sketcher.Constraint("Equal", 62, 2))
sketch1.addConstraint(Sketcher.Constraint("Equal", 15, 19))
sketch1.addConstraint(Sketcher.Constraint("Diameter", 0, 32.0))
sketch1.addConstraint(Sketcher.Constraint("Radius", 1, 2.5))
sketch1.addConstraint(Sketcher.Constraint("DistanceY", 1, 3, -1, 1, 10.0))
sketch1.addConstraint(Sketcher.Constraint("DistanceX", 17, 3, -1, 1, 10.0))
sketch1.addConstraint(Sketcher.Constraint("DistanceX", 1, 1, -1, 1, 1.25))
sketch1.setExpression("Constraints[179]", "Params.sketch1_diameter")
sketch1.setExpression("Constraints[180]", "Params.sketch1_radius")
pad1 = body.newObject("PartDesign::Pad", "Pad")
pad1.Profile = sketch1
pad1.setExpression("Length", "Params.pad1_length")

sketch2 = body.newObject("Sketcher::SketchObject", "Sketch001")
sketch2.AttachmentSupport = (doc.getObject("XY_Plane"), [""])
sketch2.MapMode = "FlatFace"
sketch2.addGeometry(Part.Circle(App.Vector(0, 0, 0), App.Vector(0, 0, 1), 2.7), False)
sketch2.addConstraint(Sketcher.Constraint("Coincident", 0, 3, -1, 1))
sketch2.addConstraint(Sketcher.Constraint("Diameter", 0, 5.4))
sketch2.setExpression("Constraints[1]", "Params.sketch2_diameter")
pad2 = body.newObject("PartDesign::Pad", "Pad001")
pad2.Profile = sketch2
pad2.setExpression("Length", "Params.pad2_length")
pad2.Reversed = True

sketch3 = body.newObject("Sketcher::SketchObject", "Sketch002")
sketch3.AttachmentSupport = (doc.getObject("XY_Plane"), [""])
sketch3.MapMode = "FlatFace"
sketch3.AttachmentOffset = App.Placement(App.Vector(0, 0, -50), App.Rotation())
sketch3.addGeometry(Part.Circle(App.Vector(0, 0, 0), App.Vector(0, 0, 1), 2.7), False)
sketch3.addGeometry(Part.Circle(App.Vector(0, 0, 0), App.Vector(0, 0, 1), 2), False)
sketch3.addConstraint(Sketcher.Constraint("Coincident", 0, 3, -1, 1))
sketch3.addConstraint(Sketcher.Constraint("Coincident", 1, 3, -1, 1))
sketch3.addConstraint(Sketcher.Constraint("Diameter", 1, 4.0))
sketch3.addConstraint(Sketcher.Constraint("Diameter", 0, 5.4))
sketch3.setExpression("Constraints[2]", "Params.sketch3_diameter")
sketch3.setExpression("Constraints[3]", "Params.sketch3_diameter2")
pocket1 = body.newObject("PartDesign::Pocket", "Pocket")
pocket1.Profile = sketch3
pocket1.setExpression("Length", "Params.pocket1_length")
pocket1.Reversed = True

doc.recompute()
